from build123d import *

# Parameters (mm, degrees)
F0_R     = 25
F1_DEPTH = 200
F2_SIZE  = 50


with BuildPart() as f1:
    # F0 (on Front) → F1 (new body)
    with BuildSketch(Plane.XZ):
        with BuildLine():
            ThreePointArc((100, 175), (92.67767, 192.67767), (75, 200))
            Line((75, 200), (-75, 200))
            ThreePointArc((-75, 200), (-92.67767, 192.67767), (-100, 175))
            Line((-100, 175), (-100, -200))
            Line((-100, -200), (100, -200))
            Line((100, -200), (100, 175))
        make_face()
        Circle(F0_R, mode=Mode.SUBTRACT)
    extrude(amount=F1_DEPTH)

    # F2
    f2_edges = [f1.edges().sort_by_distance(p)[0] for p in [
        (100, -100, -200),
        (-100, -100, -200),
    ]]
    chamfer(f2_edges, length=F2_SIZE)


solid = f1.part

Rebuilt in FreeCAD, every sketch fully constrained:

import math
import FreeCAD as App
import Part
import Sketcher

V = App.Vector
Q = App.Units.Quantity


def edges_at(feature, points):
    """Names of the edges that pass closest to the given points."""
    edges = feature.Shape.Edges
    near = lambda p: min(range(len(edges)), key=lambda i: edges[i].distToShape(Part.Vertex(*p))[0])
    return sorted({f"Edge{near(p) + 1}" for p in points})

doc = App.newDocument("Part")
body = doc.addObject("PartDesign::Body", "Body")

sketch1 = body.newObject("Sketcher::SketchObject", "Sketch")
sketch1.AttachmentSupport = (doc.getObject("XZ_Plane"), [""])
sketch1.MapMode = "FlatFace"
sketch1.addGeometry(Part.ArcOfCircle(Part.Circle(V(75, 175, 0), V(0, 0, 1), 25), math.radians(0), math.radians(90)), False)
sketch1.addGeometry(Part.LineSegment(V(75, 200, 0), V(-75, 200, 0)), False)
sketch1.addGeometry(Part.ArcOfCircle(Part.Circle(V(-75, 175, 0), V(0, 0, 1), 25), math.radians(90), math.radians(180)), False)
sketch1.addGeometry(Part.LineSegment(V(-100, 175, 0), V(-100, -200, 0)), False)
sketch1.addGeometry(Part.LineSegment(V(-100, -200, 0), V(100, -200, 0)), False)
sketch1.addGeometry(Part.LineSegment(V(100, -200, 0), V(100, 175, 0)), False)
sketch1.addGeometry(Part.Circle(V(0, 0, 0), V(0, 0, 1), 25), False)
sketch1.addConstraint(Sketcher.Constraint("Tangent", 0, 2, 1, 1))
sketch1.addConstraint(Sketcher.Constraint("Tangent", 1, 2, 2, 1))
sketch1.addConstraint(Sketcher.Constraint("Tangent", 2, 2, 3, 1))
sketch1.addConstraint(Sketcher.Constraint("Coincident", 3, 2, 4, 1))
sketch1.addConstraint(Sketcher.Constraint("Coincident", 4, 2, 5, 1))
sketch1.addConstraint(Sketcher.Constraint("Tangent", 5, 2, 0, 1))
sketch1.addConstraint(Sketcher.Constraint("Horizontal", 1))
sketch1.addConstraint(Sketcher.Constraint("Vertical", 3))
sketch1.addConstraint(Sketcher.Constraint("Horizontal", 4))
sketch1.addConstraint(Sketcher.Constraint("Vertical", 5))
sketch1.addConstraint(Sketcher.Constraint("Coincident", 6, 3, -1, 1))
sketch1.addConstraint(Sketcher.Constraint("Equal", 0, 2))
sketch1.addConstraint(Sketcher.Constraint("Equal", 2, 6))
sketch1.addConstraint(Sketcher.Constraint("Diameter", 6, Q("50 mm")))
sketch1.addConstraint(Sketcher.Constraint("DistanceX", 1, 2, 1, 1, Q("150 mm")))
sketch1.addConstraint(Sketcher.Constraint("DistanceY", 3, 2, 3, 1, Q("375 mm")))
sketch1.addConstraint(Sketcher.Constraint("DistanceX", -1, 1, 0, 3, Q("75.000002 mm")))
sketch1.addConstraint(Sketcher.Constraint("DistanceY", -1, 1, 0, 3, Q("175.000002 mm")))
pad1 = body.newObject("PartDesign::Pad", "Pad")
pad1.Profile = sketch1
pad1.Length = 200
doc.recompute()

chamfer = body.newObject("PartDesign::Chamfer", "Chamfer")
chamfer.Base = (pad1, edges_at(pad1, [(100, -100, -200), (-100, -100, -200)]))
chamfer.Size = 50

doc.recompute()
